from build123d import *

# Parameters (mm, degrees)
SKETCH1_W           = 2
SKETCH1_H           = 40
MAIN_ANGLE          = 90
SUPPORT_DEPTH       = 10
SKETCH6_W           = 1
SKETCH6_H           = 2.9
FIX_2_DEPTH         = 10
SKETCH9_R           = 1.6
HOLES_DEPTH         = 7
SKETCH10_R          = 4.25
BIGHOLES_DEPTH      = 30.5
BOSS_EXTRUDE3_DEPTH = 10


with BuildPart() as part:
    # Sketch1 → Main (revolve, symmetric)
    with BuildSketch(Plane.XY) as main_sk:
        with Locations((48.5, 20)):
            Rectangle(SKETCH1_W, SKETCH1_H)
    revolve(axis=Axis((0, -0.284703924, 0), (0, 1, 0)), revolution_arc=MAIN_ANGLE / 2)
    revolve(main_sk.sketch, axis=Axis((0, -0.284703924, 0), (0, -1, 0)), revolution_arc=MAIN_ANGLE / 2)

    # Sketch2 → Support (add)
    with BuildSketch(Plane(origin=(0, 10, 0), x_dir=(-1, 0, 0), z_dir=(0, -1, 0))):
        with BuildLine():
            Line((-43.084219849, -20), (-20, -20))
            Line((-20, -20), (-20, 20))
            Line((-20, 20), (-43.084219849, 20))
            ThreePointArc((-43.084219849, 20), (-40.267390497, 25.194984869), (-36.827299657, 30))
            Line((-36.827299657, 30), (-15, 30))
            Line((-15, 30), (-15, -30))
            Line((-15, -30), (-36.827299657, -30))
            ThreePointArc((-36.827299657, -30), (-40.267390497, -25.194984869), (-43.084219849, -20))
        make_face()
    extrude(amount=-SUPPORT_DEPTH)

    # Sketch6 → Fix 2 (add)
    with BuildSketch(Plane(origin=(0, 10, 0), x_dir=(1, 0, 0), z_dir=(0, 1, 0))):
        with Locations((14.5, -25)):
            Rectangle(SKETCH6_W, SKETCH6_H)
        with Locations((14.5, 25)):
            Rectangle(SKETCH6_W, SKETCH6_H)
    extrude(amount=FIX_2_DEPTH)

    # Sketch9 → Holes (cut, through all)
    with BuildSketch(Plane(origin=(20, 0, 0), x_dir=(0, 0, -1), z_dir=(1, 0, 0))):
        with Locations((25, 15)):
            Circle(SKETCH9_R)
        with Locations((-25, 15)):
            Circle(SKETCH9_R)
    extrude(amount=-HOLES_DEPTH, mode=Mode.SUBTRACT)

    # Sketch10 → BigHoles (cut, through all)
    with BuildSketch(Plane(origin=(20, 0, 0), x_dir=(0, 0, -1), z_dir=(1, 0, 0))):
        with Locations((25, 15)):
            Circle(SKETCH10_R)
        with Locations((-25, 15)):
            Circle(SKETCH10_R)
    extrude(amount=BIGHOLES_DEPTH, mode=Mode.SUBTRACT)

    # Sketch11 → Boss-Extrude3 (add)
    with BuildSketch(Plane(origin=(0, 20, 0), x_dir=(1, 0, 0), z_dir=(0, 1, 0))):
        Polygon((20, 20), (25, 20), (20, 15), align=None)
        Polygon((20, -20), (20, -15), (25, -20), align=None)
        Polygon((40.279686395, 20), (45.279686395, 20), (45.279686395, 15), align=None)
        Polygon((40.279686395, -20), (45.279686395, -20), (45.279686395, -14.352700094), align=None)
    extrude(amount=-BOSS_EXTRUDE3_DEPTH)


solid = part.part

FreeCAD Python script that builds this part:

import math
import FreeCAD as App
import Part
import Sketcher


def add_polygon(sketch, points):
    """Adds a closed chain of lines whose ends are joined by coincident constraints."""
    first, n = sketch.GeometryCount, len(points)
    for a, b in zip(points, points[1:] + points[:1]):
        sketch.addGeometry(Part.LineSegment(App.Vector(*a, 0), App.Vector(*b, 0)), False)
    for i in range(n):
        sketch.addConstraint(Sketcher.Constraint("Coincident", first + i, 2, first + (i + 1) % n, 1))

doc = App.newDocument("Part")
params = doc.addObject("Spreadsheet::Sheet", "Params")
for row, (alias, value) in enumerate([
    ("sketch1_width", "2 mm"),
    ("sketch1_height", "40 mm"),
    ("revolution_angle", "45 deg"),
    ("sketch2_width", "2 mm"),
    ("sketch2_height", "40 mm"),
    ("revolution2_angle", "45 deg"),
    ("sketch3_radius", "47.5 mm"),
    ("sketch3_height", "60 mm"),
    ("sketch3_height2", "40 mm"),
    ("pad1_length", "10 mm"),
    ("sketch4_width", "1 mm"),
    ("sketch4_height", "2.9 mm"),
    ("pad2_length", "10 mm"),
    ("sketch5_diameter", "3.2 mm"),
    ("sketch6_diameter", "8.5 mm"),
    ("sketch7_width", "5 mm"),
    ("pad3_length", "10 mm"),
], start=1):
    params.set(f"A{row}", alias)
    params.set(f"B{row}", "=" + value)
    params.setAlias(f"B{row}", alias)

body = doc.addObject("PartDesign::Body", "Body")

# Sketch on XY plane
sketch1 = doc.addObject("Sketcher::SketchObject", "Sketch")
body.addObject(sketch1)
sketch1.AttachmentSupport = (doc.XY_Plane, [""])
sketch1.MapMode = "FlatFace"
add_polygon(sketch1, [(47.5, 40), (47.5, 0), (49.5, 0), (49.5, 40)])  # lines 0-3
sketch1.addConstraint(Sketcher.Constraint("Vertical", 0))
sketch1.addConstraint(Sketcher.Constraint("Horizontal", 1))
sketch1.addConstraint(Sketcher.Constraint("Vertical", 2))
sketch1.addConstraint(Sketcher.Constraint("Horizontal", 3))
sketch1.addConstraint(Sketcher.Constraint("PointOnObject", 0, 2, -1))
sketch1.addConstraint(Sketcher.Constraint("DistanceX", 1, 1, 1, 2, 2.0))
sketch1.addConstraint(Sketcher.Constraint("DistanceY", 0, 2, 0, 1, 40.0))
sketch1.addConstraint(Sketcher.Constraint("DistanceX", -1, 1, 0, 2, 47.5))
sketch1.setExpression("Constraints[9]", "Params.sketch1_width")
sketch1.setExpression("Constraints[10]", "Params.sketch1_height")
revolution = doc.addObject("PartDesign::Revolution", "Revolution")
body.addObject(revolution)
revolution.Profile = sketch1
revolution.ReferenceAxis = (sketch1, ["V_Axis"])
revolution.setExpression("Angle", "Params.revolution_angle")

# Sketch on XY plane
sketch2 = doc.addObject("Sketcher::SketchObject", "Sketch001")
body.addObject(sketch2)
sketch2.AttachmentSupport = (doc.XY_Plane, [""])
sketch2.MapMode = "FlatFace"
add_polygon(sketch2, [(47.5, 40), (47.5, 0), (49.5, 0), (49.5, 40)])  # lines 0-3
sketch2.addConstraint(Sketcher.Constraint("Vertical", 0))
sketch2.addConstraint(Sketcher.Constraint("Horizontal", 1))
sketch2.addConstraint(Sketcher.Constraint("Vertical", 2))
sketch2.addConstraint(Sketcher.Constraint("Horizontal", 3))
sketch2.addConstraint(Sketcher.Constraint("PointOnObject", 0, 2, -1))
sketch2.addConstraint(Sketcher.Constraint("DistanceX", 1, 1, 1, 2, 2.0))
sketch2.addConstraint(Sketcher.Constraint("DistanceY", 0, 2, 0, 1, 40.0))
sketch2.addConstraint(Sketcher.Constraint("DistanceX", -1, 1, 0, 2, 47.5))
sketch2.setExpression("Constraints[9]", "Params.sketch2_width")
sketch2.setExpression("Constraints[10]", "Params.sketch2_height")
revolution2 = doc.addObject("PartDesign::Revolution", "Revolution001")
body.addObject(revolution2)
revolution2.Profile = sketch2
revolution2.ReferenceAxis = (sketch2, ["V_Axis"])
revolution2.setExpression("Angle", "Params.revolution2_angle")
revolution2.Reversed = True

# Sketch on XZ plane
sketch3 = doc.addObject("Sketcher::SketchObject", "Sketch002")
body.addObject(sketch3)
sketch3.AttachmentSupport = (doc.XZ_Plane, [""])
sketch3.MapMode = "FlatFace"
sketch3.AttachmentOffset = App.Placement(App.Vector(0, 0, -10), App.Rotation())
sketch3.addGeometry(Part.LineSegment(App.Vector(20, 20, 0), App.Vector(43, 20, 0)), False)
sketch3.addGeometry(Part.ArcOfCircle(Part.Circle(App.Vector(0, 0, 0), App.Vector(0, 0, 1), 48), math.radians(24.9), math.radians(39.17)), False)
sketch3.addGeometry(Part.LineSegment(App.Vector(37, 30, 0), App.Vector(15, 30, 0)), False)
sketch3.addGeometry(Part.LineSegment(App.Vector(15, 30, 0), App.Vector(15, -30, 0)), False)
sketch3.addGeometry(Part.LineSegment(App.Vector(15, -30, 0), App.Vector(37, -30, 0)), False)
sketch3.addGeometry(Part.ArcOfCircle(Part.Circle(App.Vector(0, 0, 0), App.Vector(0, 0, 1), 48), math.radians(-39.17), math.radians(-24.9)), False)
sketch3.addGeometry(Part.LineSegment(App.Vector(43, -20, 0), App.Vector(20, -20, 0)), False)
sketch3.addGeometry(Part.LineSegment(App.Vector(20, -20, 0), App.Vector(20, 20, 0)), False)
sketch3.addConstraint(Sketcher.Constraint("Coincident", 0, 2, 1, 1))
sketch3.addConstraint(Sketcher.Constraint("Coincident", 1, 2, 2, 1))
sketch3.addConstraint(Sketcher.Constraint("Coincident", 2, 2, 3, 1))
sketch3.addConstraint(Sketcher.Constraint("Coincident", 3, 2, 4, 1))
sketch3.addConstraint(Sketcher.Constraint("Coincident", 4, 2, 5, 1))
sketch3.addConstraint(Sketcher.Constraint("Coincident", 5, 2, 6, 1))
sketch3.addConstraint(Sketcher.Constraint("Coincident", 6, 2, 7, 1))
sketch3.addConstraint(Sketcher.Constraint("Coincident", 7, 2, 0, 1))
sketch3.addConstraint(Sketcher.Constraint("Horizontal", 0))
sketch3.addConstraint(Sketcher.Constraint("Horizontal", 2))
sketch3.addConstraint(Sketcher.Constraint("Vertical", 3))
sketch3.addConstraint(Sketcher.Constraint("Horizontal", 4))
sketch3.addConstraint(Sketcher.Constraint("Horizontal", 6))
sketch3.addConstraint(Sketcher.Constraint("Vertical", 7))
sketch3.addConstraint(Sketcher.Constraint("Coincident", 1, 3, -1, 1))
sketch3.addConstraint(Sketcher.Constraint("Coincident", 5, 3, -1, 1))
sketch3.addConstraint(Sketcher.Constraint("Equal", 1, 5))
sketch3.addConstraint(Sketcher.Constraint("Vertical", 1, 2, 4, 2))
sketch3.addConstraint(Sketcher.Constraint("Vertical", 0, 2, 5, 2))
sketch3.addConstraint(Sketcher.Constraint("Radius", 1, 47.5))
sketch3.addConstraint(Sketcher.Constraint("DistanceY", 3, 2, 3, 1, 60.0))
sketch3.addConstraint(Sketcher.Constraint("DistanceY", 7, 1, 7, 2, 40.0))
sketch3.addConstraint(Sketcher.Constraint("DistanceX", -1, 1, 2, 2, 15.0))
sketch3.addConstraint(Sketcher.Constraint("DistanceX", -1, 1, 6, 2, 20.0))
sketch3.setExpression("Constraints[19]", "Params.sketch3_radius")
sketch3.setExpression("Constraints[20]", "Params.sketch3_height")
sketch3.setExpression("Constraints[21]", "Params.sketch3_height2")
pad1 = doc.addObject("PartDesign::Pad", "Pad")
body.addObject(pad1)
pad1.Profile = sketch3
pad1.setExpression("Length", "Params.pad1_length")
pad1.Reversed = True

# Sketch on XZ plane
sketch4 = doc.addObject("Sketcher::SketchObject", "Sketch003")
body.addObject(sketch4)
sketch4.AttachmentSupport = (doc.XZ_Plane, [""])
sketch4.MapMode = "FlatFace"
sketch4.AttachmentOffset = App.Placement(App.Vector(0, 0, -10), App.Rotation())
add_polygon(sketch4, [(14, 23.6), (14, 26.4), (15, 26.4), (15, 23.6)])  # lines 0-3
add_polygon(sketch4, [(14, -26.4), (14, -23.6), (15, -23.6), (15, -26.4)])  # lines 4-7
sketch4.addConstraint(Sketcher.Constraint("Vertical", 0))
sketch4.addConstraint(Sketcher.Constraint("Horizontal", 1))
sketch4.addConstraint(Sketcher.Constraint("Vertical", 2))
sketch4.addConstraint(Sketcher.Constraint("Horizontal", 3))
sketch4.addConstraint(Sketcher.Constraint("Vertical", 4))
sketch4.addConstraint(Sketcher.Constraint("Horizontal", 5))
sketch4.addConstraint(Sketcher.Constraint("Vertical", 6))
sketch4.addConstraint(Sketcher.Constraint("Horizontal", 7))
sketch4.addConstraint(Sketcher.Constraint("Symmetric", 3, 2, 4, 2, -1))
sketch4.addConstraint(Sketcher.Constraint("Symmetric", 1, 2, 6, 2, -1))
sketch4.addConstraint(Sketcher.Constraint("DistanceX", 1, 1, 1, 2, 1.0))
sketch4.addConstraint(Sketcher.Constraint("DistanceY", 0, 1, 0, 2, 2.9))
sketch4.addConstraint(Sketcher.Constraint("DistanceX", -1, 1, 0, 2, 14.0))
sketch4.addConstraint(Sketcher.Constraint("DistanceY", 4, 2, 0, 2, 50.0))
sketch4.setExpression("Constraints[18]", "Params.sketch4_width")
sketch4.setExpression("Constraints[19]", "Params.sketch4_height")
pad2 = doc.addObject("PartDesign::Pad", "Pad001")
body.addObject(pad2)
pad2.Profile = sketch4
pad2.setExpression("Length", "Params.pad2_length")
pad2.Reversed = True

# Sketch on YZ plane
sketch5 = doc.addObject("Sketcher::SketchObject", "Sketch004")
body.addObject(sketch5)
sketch5.AttachmentSupport = (doc.YZ_Plane, [""])
sketch5.MapMode = "FlatFace"
sketch5.AttachmentOffset = App.Placement(App.Vector(0, 0, 20), App.Rotation())
sketch5.addGeometry(Part.Circle(App.Vector(15, -25, 0), App.Vector(0, 0, 1), 1.6), False)
sketch5.addGeometry(Part.Circle(App.Vector(15, 25, 0), App.Vector(0, 0, 1), 1.6), False)
sketch5.addConstraint(Sketcher.Constraint("Equal", 0, 1))
sketch5.addConstraint(Sketcher.Constraint("Symmetric", 0, 3, 1, 3, -1))
sketch5.addConstraint(Sketcher.Constraint("Diameter", 0, 3.2))
sketch5.addConstraint(Sketcher.Constraint("DistanceX", -1, 1, 0, 3, 15.0))
sketch5.addConstraint(Sketcher.Constraint("DistanceY", 0, 3, -1, 1, 25.0))
sketch5.setExpression("Constraints[2]", "Params.sketch5_diameter")
pocket1 = doc.addObject("PartDesign::Pocket", "Pocket")
body.addObject(pocket1)
pocket1.Profile = sketch5
pocket1.Type = "ThroughAll"

# Sketch on YZ plane
sketch6 = doc.addObject("Sketcher::SketchObject", "Sketch005")
body.addObject(sketch6)
sketch6.AttachmentSupport = (doc.YZ_Plane, [""])
sketch6.MapMode = "FlatFace"
sketch6.AttachmentOffset = App.Placement(App.Vector(0, 0, 20), App.Rotation())
sketch6.addGeometry(Part.Circle(App.Vector(15, -25, 0), App.Vector(0, 0, 1), 4.2), False)
sketch6.addGeometry(Part.Circle(App.Vector(15, 25, 0), App.Vector(0, 0, 1), 4.2), False)
sketch6.addConstraint(Sketcher.Constraint("Equal", 0, 1))
sketch6.addConstraint(Sketcher.Constraint("Symmetric", 0, 3, 1, 3, -1))
sketch6.addConstraint(Sketcher.Constraint("Diameter", 0, 8.5))
sketch6.addConstraint(Sketcher.Constraint("DistanceX", -1, 1, 0, 3, 15.0))
sketch6.addConstraint(Sketcher.Constraint("DistanceY", 0, 3, -1, 1, 25.0))
sketch6.setExpression("Constraints[2]", "Params.sketch6_diameter")
pocket2 = doc.addObject("PartDesign::Pocket", "Pocket001")
body.addObject(pocket2)
pocket2.Profile = sketch6
pocket2.Type = "ThroughAll"
pocket2.Reversed = True

# Sketch on XZ plane
sketch7 = doc.addObject("Sketcher::SketchObject", "Sketch006")
body.addObject(sketch7)
sketch7.AttachmentSupport = (doc.XZ_Plane, [""])
sketch7.MapMode = "FlatFace"
sketch7.AttachmentOffset = App.Placement(App.Vector(0, 0, -20), App.Rotation())
add_polygon(sketch7, [(25, -20), (20, -20), (20, -15)])  # lines 0-2
add_polygon(sketch7, [(20, 15), (20, 20), (25, 20)])  # lines 3-5
add_polygon(sketch7, [(45, -20), (40, -20), (45, -15)])  # lines 6-8
add_polygon(sketch7, [(40, 20), (45, 20), (45, 14)])  # lines 9-11
sketch7.addConstraint(Sketcher.Constraint("Horizontal", 0))
sketch7.addConstraint(Sketcher.Constraint("Vertical", 1))
sketch7.addConstraint(Sketcher.Constraint("Vertical", 3))
sketch7.addConstraint(Sketcher.Constraint("Horizontal", 4))
sketch7.addConstraint(Sketcher.Constraint("Horizontal", 6))
sketch7.addConstraint(Sketcher.Constraint("Vertical", 8))
sketch7.addConstraint(Sketcher.Constraint("Horizontal", 9))
sketch7.addConstraint(Sketcher.Constraint("Vertical", 10))
sketch7.addConstraint(Sketcher.Constraint("Symmetric", 0, 2, 3, 2, -1))
sketch7.addConstraint(Sketcher.Constraint("Symmetric", 8, 2, 9, 2, -1))
sketch7.addConstraint(Sketcher.Constraint("Perpendicular", 2, 5))
sketch7.addConstraint(Sketcher.Constraint("Parallel", 5, 7))
sketch7.addConstraint(Sketcher.Constraint("Horizontal", 2, 2, 6, 2))
sketch7.addConstraint(Sketcher.Constraint("Horizontal", 1, 2, 7, 2))
sketch7.addConstraint(Sketcher.Constraint("Vertical", 2, 2, 4, 2))
sketch7.addConstraint(Sketcher.Constraint("Vertical", 6, 2, 11, 2))
sketch7.addConstraint(Sketcher.Constraint("Equal", 4, 6))
sketch7.addConstraint(Sketcher.Constraint("DistanceX", 0, 2, 0, 1, 5.0))
sketch7.addConstraint(Sketcher.Constraint("DistanceX", -1, 1, 0, 2, 20.0))
sketch7.addConstraint(Sketcher.Constraint("DistanceY", 0, 2, -1, 1, 20.0))
sketch7.addConstraint(Sketcher.Constraint("DistanceY", 10, 2, 10, 1, 5.6473))
sketch7.addConstraint(Sketcher.Constraint("DistanceX", -1, 1, 6, 2, 40.279686))
sketch7.setExpression("Constraints[29]", "Params.sketch7_width")
pad3 = doc.addObject("PartDesign::Pad", "Pad002")
body.addObject(pad3)
pad3.Profile = sketch7
pad3.setExpression("Length", "Params.pad3_length")

doc.recompute()
